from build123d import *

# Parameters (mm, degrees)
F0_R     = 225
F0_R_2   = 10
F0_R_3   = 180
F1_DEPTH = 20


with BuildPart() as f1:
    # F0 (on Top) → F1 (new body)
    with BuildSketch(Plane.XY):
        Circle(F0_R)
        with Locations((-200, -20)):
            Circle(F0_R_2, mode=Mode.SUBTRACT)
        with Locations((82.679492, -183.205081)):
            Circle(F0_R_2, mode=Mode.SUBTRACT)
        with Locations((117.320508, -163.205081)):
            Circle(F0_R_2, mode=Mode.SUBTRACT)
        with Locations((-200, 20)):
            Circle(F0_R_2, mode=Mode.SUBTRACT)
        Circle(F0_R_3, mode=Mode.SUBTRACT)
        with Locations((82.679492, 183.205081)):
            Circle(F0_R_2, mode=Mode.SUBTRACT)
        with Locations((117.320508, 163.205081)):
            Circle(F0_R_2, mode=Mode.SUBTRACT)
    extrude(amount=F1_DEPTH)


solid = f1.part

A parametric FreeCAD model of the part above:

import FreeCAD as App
import Part
import Sketcher
Q = App.Units.Quantity

doc = App.newDocument("Part")
body = doc.addObject("PartDesign::Body", "Body")

# Sketch on XY plane
sketch1 = body.newObject("Sketcher::SketchObject", "Sketch")
sketch1.AttachmentSupport = (doc.getObject("XY_Plane"), [""])
sketch1.MapMode = "FlatFace"
sketch1.addGeometry([
    Part.Circle(App.Vector(0, 0, 0), App.Vector(0, 0, 1), 225),  # 0
    Part.Circle(App.Vector(-200, -20, 0), App.Vector(0, 0, 1), 10),  # 1
    Part.Circle(App.Vector(83, -183, 0), App.Vector(0, 0, 1), 10),  # 2
    Part.Circle(App.Vector(117, -163, 0), App.Vector(0, 0, 1), 10),  # 3
    Part.Circle(App.Vector(-200, 20, 0), App.Vector(0, 0, 1), 10),  # 4
    Part.Circle(App.Vector(0, 0, 0), App.Vector(0, 0, 1), 180),  # 5
    Part.Circle(App.Vector(117, 163, 0), App.Vector(0, 0, 1), 10),  # 6
    Part.Circle(App.Vector(83, 183, 0), App.Vector(0, 0, 1), 10),  # 7
], False)
sketch1.addConstraint([
    Sketcher.Constraint("Coincident", 0, 3, -1, 1),
    Sketcher.Constraint("Coincident", 5, 3, -1, 1),
    Sketcher.Constraint("Equal", 1, 2),
    Sketcher.Constraint("Equal", 2, 3),
    Sketcher.Constraint("Equal", 3, 4),
    Sketcher.Constraint("Equal", 4, 6),
    Sketcher.Constraint("Equal", 6, 7),
    Sketcher.Constraint("Symmetric", 1, 3, 4, 3, -1),
    Sketcher.Constraint("Symmetric", 3, 3, 6, 3, -1),
    Sketcher.Constraint("Symmetric", 2, 3, 7, 3, -1),
    Sketcher.Constraint("Diameter", 0, Q("450 mm")),
    Sketcher.Constraint("Diameter", 1, Q("20 mm")),
    Sketcher.Constraint("Diameter", 5, Q("360 mm")),
    Sketcher.Constraint("DistanceX", 1, 3, -1, 1, Q("200 mm")),
    Sketcher.Constraint("DistanceY", 1, 3, -1, 1, Q("20 mm")),
    Sketcher.Constraint("DistanceY", 2, 3, 3, 3, Q("20 mm")),
    Sketcher.Constraint("DistanceX", -1, 1, 2, 3, Q("82.679492 mm")),
    Sketcher.Constraint("DistanceY", 2, 3, -1, 1, Q("183.205081 mm")),
    Sketcher.Constraint("DistanceX", -1, 1, 3, 3, Q("117.320508 mm")),
])
pad1 = body.newObject("PartDesign::Pad", "Pad")
pad1.Profile = sketch1
pad1.Length = 20

doc.recompute()
